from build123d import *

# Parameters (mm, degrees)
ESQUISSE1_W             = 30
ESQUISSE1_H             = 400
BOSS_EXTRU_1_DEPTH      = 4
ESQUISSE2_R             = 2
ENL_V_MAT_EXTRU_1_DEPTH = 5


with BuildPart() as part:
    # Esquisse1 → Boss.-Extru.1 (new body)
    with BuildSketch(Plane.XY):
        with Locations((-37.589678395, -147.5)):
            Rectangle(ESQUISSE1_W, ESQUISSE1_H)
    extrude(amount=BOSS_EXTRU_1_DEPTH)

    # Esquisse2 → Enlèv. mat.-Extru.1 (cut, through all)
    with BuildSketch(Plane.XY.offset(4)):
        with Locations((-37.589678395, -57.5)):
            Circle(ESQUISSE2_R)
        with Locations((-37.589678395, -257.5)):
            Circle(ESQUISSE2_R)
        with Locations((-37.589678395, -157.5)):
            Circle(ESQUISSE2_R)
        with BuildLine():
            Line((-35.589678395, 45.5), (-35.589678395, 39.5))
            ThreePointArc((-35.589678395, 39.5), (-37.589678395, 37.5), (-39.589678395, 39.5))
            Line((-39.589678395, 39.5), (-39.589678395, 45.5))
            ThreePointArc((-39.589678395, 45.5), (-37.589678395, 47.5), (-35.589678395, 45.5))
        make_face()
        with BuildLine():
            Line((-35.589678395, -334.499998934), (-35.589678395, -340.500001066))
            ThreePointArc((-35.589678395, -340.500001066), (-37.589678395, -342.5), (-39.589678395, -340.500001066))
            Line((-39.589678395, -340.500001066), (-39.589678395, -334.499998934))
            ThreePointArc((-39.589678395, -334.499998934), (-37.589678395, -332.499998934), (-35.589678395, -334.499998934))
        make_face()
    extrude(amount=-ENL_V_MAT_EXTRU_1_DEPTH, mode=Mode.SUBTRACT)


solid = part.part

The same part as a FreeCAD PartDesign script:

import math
import FreeCAD as App
import Part
import Sketcher

doc = App.newDocument("Part")
body = doc.addObject("PartDesign::Body", "Body")

sketch1 = body.newObject("Sketcher::SketchObject", "Sketch")
sketch1.AttachmentSupport = (doc.getObject("XY_Plane"), [""])
sketch1.MapMode = "FlatFace"
sketch1.addGeometry([
    Part.LineSegment(App.Vector(-52.589678, 52.5, 0), App.Vector(-52.589678, -347.5, 0)),
    Part.LineSegment(App.Vector(-52.589678, -347.5, 0), App.Vector(-22.589678, -347.5, 0)),
    Part.LineSegment(App.Vector(-22.589678, -347.5, 0), App.Vector(-22.589678, 52.5, 0)),
    Part.LineSegment(App.Vector(-22.589678, 52.5, 0), App.Vector(-52.589678, 52.5, 0)),
], False)
sketch1.addConstraint([
    Sketcher.Constraint("Coincident", 0, 2, 1, 1),
    Sketcher.Constraint("Coincident", 1, 2, 2, 1),
    Sketcher.Constraint("Coincident", 2, 2, 3, 1),
    Sketcher.Constraint("Coincident", 3, 2, 0, 1),
    Sketcher.Constraint("Vertical", 0),
    Sketcher.Constraint("Horizontal", 1),
    Sketcher.Constraint("Vertical", 2),
    Sketcher.Constraint("Horizontal", 3),
    Sketcher.Constraint("DistanceX", 1, 1, 1, 2, 30.0),
    Sketcher.Constraint("DistanceY", 0, 2, 0, 1, 400.0),
    Sketcher.Constraint("DistanceY", 0, 2, -1, 1, 347.5),
    Sketcher.Constraint("DistanceX", 0, 2, -1, 1, 52.589678),
])
pad1 = body.newObject("PartDesign::Pad", "Pad")
pad1.Profile = sketch1
pad1.Length = 4

sketch2 = body.newObject("Sketcher::SketchObject", "Sketch001")
sketch2.AttachmentSupport = (doc.getObject("XY_Plane"), [""])
sketch2.MapMode = "FlatFace"
sketch2.AttachmentOffset = App.Placement(App.Vector(0, 0, 4), App.Rotation())
sketch2.addGeometry([
    Part.Circle(App.Vector(-37.589678, -57.5, 0), App.Vector(0, 0, 1), 2),
    Part.Circle(App.Vector(-37.589678, -257.5, 0), App.Vector(0, 0, 1), 2),
    Part.Circle(App.Vector(-37.589678, -157.5, 0), App.Vector(0, 0, 1), 2),
    Part.LineSegment(App.Vector(-35.589678, 39.5, 0), App.Vector(-35.589678, 45.5, 0)),
    Part.ArcOfCircle(Part.Circle(App.Vector(-37.589678, 45.5, 0), App.Vector(0, 0, 1), 2), math.radians(0), math.radians(180)),
    Part.LineSegment(App.Vector(-39.589678, 45.5, 0), App.Vector(-39.589678, 39.5, 0)),
    Part.ArcOfCircle(Part.Circle(App.Vector(-37.589678, 39.5, 0), App.Vector(0, 0, 1), 2), math.radians(180), math.radians(360)),
    Part.LineSegment(App.Vector(-35.589678, -340.500001, 0), App.Vector(-35.589678, -334.499999, 0)),
    Part.ArcOfCircle(Part.Circle(App.Vector(-37.589678, -334.499999, 0), App.Vector(0, 0, 1), 2), math.radians(0), math.radians(180)),
    Part.LineSegment(App.Vector(-39.589678, -334.499999, 0), App.Vector(-39.589678, -340.500001, 0)),
    Part.ArcOfCircle(Part.Circle(App.Vector(-37.589678, -340.5, 0), App.Vector(0, 0, 1), 2), math.radians(-179.999969), math.radians(-0.000031)),
], False)
sketch2.addConstraint([
    Sketcher.Constraint("Tangent", 3, 2, 4, 1),
    Sketcher.Constraint("Tangent", 4, 2, 5, 1),
    Sketcher.Constraint("Tangent", 5, 2, 6, 1),
    Sketcher.Constraint("Tangent", 6, 2, 3, 1),
    Sketcher.Constraint("Tangent", 7, 2, 8, 1),
    Sketcher.Constraint("Tangent", 8, 2, 9, 1),
    Sketcher.Constraint("Tangent", 9, 2, 10, 1),
    Sketcher.Constraint("Tangent", 10, 2, 7, 1),
    Sketcher.Constraint("Vertical", 3),
    Sketcher.Constraint("Vertical", 5),
    Sketcher.Constraint("Vertical", 7),
    Sketcher.Constraint("Vertical", 9),
    Sketcher.Constraint("Equal", 0, 1),
    Sketcher.Constraint("Equal", 1, 2),
    Sketcher.Constraint("Equal", 2, 4),
    Sketcher.Constraint("Equal", 6, 8),
    Sketcher.Constraint("Vertical", 0, 3, 1, 3),
    Sketcher.Constraint("Vertical", 1, 3, 2, 3),
    Sketcher.Constraint("Vertical", 2, 3, 4, 3),
    Sketcher.Constraint("Vertical", 6, 3, 8, 3),
    Sketcher.Constraint("Diameter", 0, 4.0),
    Sketcher.Constraint("DistanceY", 3, 1, 3, 2, 6.0),
    Sketcher.Constraint("DistanceY", 1, 3, 0, 3, 200.0),
    Sketcher.Constraint("DistanceY", 2, 3, 0, 3, 100.0),
    Sketcher.Constraint("DistanceY", 0, 3, 4, 3, 103.0),
    Sketcher.Constraint("DistanceY", 8, 3, 1, 3, 76.999999),
    Sketcher.Constraint("DistanceY", 10, 3, 8, 3, 6.000001),
    Sketcher.Constraint("DistanceY", 0, 3, -1, 1, 57.5),
    Sketcher.Constraint("DistanceX", 0, 3, -1, 1, 37.589678),
])
pocket1 = body.newObject("PartDesign::Pocket", "Pocket")
pocket1.Profile = sketch2
pocket1.Type = "ThroughAll"

doc.recompute()
